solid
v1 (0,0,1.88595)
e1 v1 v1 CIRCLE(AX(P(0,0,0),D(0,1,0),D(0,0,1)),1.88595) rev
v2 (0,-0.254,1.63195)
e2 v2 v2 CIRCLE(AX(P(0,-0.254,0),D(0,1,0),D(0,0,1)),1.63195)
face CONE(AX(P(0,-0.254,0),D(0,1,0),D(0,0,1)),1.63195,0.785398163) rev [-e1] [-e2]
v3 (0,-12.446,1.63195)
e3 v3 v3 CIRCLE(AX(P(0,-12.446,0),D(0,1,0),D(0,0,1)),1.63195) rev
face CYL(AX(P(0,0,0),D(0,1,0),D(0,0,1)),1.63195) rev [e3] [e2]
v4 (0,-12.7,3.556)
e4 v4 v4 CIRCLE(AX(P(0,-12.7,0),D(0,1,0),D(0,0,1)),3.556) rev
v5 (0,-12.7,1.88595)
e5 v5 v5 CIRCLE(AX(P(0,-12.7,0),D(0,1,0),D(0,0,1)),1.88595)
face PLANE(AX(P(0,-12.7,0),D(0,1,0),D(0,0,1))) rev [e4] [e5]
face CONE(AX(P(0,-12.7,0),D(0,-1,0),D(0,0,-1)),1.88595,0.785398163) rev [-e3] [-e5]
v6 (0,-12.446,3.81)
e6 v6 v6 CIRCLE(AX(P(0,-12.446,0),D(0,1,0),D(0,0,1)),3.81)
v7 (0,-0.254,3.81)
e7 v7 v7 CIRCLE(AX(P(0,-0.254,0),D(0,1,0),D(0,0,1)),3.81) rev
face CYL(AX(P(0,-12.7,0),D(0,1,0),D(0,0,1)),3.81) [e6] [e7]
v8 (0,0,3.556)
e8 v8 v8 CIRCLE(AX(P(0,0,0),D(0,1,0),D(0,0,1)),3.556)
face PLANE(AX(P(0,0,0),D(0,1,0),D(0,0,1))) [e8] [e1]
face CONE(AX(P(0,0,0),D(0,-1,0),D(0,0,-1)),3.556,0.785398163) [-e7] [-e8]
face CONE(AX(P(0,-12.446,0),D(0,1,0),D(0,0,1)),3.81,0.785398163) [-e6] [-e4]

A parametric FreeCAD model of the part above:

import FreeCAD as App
import Part
import Sketcher
Q = App.Units.Quantity


def edges_at(feature, points):
    """Names of the edges that pass closest to the given points."""
    edges = feature.Shape.Edges
    near = lambda p: min(range(len(edges)), key=lambda i: edges[i].distToShape(Part.Vertex(*p))[0])
    return sorted({f"Edge{near(p) + 1}" for p in points})

doc = App.newDocument("Part")
params = doc.addObject("Spreadsheet::Sheet", "Params")
for row, (alias, value) in enumerate([
    ("sketch1_diameter", "0.3 in"),
    ("pad1_length", "0.5 in"),
    ("hole_diameter", "0.1285 in"),
    ("chamfer_size", "0.01 in"),
], start=1):
    params.set(f"A{row}", alias)
    params.set(f"B{row}", "=" + value)
    params.setAlias(f"B{row}", alias)

body = doc.addObject("PartDesign::Body", "Body")

sketch1 = body.newObject("Sketcher::SketchObject", "Sketch")
sketch1.AttachmentSupport = (doc.getObject("XZ_Plane"), [""])
sketch1.MapMode = "FlatFace"
sketch1.addGeometry(Part.Circle(App.Vector(0, 0, 0), App.Vector(0, 0, 1), 3.81), False)
sketch1.addConstraint(Sketcher.Constraint("Coincident", 0, 3, -1, 1))
sketch1.addConstraint(Sketcher.Constraint("Diameter", 0, Q("0.3 in")))
sketch1.setExpression("Constraints[1]", "Params.sketch1_diameter")
pad1 = body.newObject("PartDesign::Pad", "Pad")
pad1.Profile = sketch1
pad1.setExpression("Length", "Params.pad1_length")

sketch2 = body.newObject("Sketcher::SketchObject", "Sketch001")
sketch2.AttachmentSupport = (doc.getObject("XZ_Plane"), [""])
sketch2.MapMode = "FlatFace"
sketch2.addGeometry(Part.Circle(App.Vector(0, 0, 0), App.Vector(0, 0, 1), 1.63195), False)
sketch2.addConstraint(Sketcher.Constraint("Coincident", 0, 3, -1, 1))
sketch2.addConstraint(Sketcher.Constraint("Diameter", 0, Q("0.1285 in")))
doc.recompute()
hole = body.newObject("PartDesign::Hole", "Hole")
hole.Profile = sketch2
hole.ThreadType = "None"
hole.setExpression("Diameter", "Params.hole_diameter")
hole.DepthType = "ThroughAll"
hole.Reversed = True
doc.recompute()

chamfer = body.newObject("PartDesign::Chamfer", "Chamfer")
chamfer.Base = (hole, edges_at(hole, [
    (0, 0, -3.81),
    (0, -12.7, -3.81),
    (1.632, 0, 0),
    (1.632, -12.7, 0),
]))
chamfer.setExpression("Size", "Params.chamfer_size")

doc.recompute()
